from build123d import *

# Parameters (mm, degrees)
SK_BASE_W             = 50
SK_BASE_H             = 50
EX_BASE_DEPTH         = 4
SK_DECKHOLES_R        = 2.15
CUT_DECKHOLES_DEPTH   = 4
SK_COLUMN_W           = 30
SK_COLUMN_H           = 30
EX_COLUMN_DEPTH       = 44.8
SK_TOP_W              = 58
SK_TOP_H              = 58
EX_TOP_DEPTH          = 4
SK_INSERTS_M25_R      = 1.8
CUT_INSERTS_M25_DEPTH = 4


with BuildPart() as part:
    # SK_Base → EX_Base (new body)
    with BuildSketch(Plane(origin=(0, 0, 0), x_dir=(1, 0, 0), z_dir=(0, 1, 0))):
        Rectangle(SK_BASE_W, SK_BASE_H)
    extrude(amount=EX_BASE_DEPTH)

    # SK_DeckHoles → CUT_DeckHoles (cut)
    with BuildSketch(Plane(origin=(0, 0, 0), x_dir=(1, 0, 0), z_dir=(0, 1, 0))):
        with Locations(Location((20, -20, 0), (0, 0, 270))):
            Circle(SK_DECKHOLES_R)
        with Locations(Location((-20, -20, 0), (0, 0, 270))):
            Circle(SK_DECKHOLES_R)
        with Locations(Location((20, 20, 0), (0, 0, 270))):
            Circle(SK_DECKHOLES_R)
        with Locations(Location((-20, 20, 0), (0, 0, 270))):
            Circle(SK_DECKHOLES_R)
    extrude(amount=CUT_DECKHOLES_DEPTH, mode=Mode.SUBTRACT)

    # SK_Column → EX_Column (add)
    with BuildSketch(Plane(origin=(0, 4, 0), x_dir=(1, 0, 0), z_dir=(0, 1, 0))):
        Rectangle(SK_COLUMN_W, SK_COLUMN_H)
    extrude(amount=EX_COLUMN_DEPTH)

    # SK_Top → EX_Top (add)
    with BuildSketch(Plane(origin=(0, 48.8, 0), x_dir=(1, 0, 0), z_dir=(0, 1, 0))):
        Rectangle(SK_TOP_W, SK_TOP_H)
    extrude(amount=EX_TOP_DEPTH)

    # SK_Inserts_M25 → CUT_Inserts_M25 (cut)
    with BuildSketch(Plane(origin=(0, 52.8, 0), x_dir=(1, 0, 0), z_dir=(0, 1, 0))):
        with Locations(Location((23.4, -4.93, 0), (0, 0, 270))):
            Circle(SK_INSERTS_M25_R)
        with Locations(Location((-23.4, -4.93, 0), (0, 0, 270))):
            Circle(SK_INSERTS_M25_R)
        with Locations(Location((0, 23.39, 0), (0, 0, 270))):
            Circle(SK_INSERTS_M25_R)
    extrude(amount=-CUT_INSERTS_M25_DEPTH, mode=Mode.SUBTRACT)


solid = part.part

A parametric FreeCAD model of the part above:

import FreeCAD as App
import Part
import Sketcher

V = App.Vector
Q = App.Units.Quantity


def add_polygon(sketch, points):
    """Adds a closed chain of lines whose ends are joined by coincident constraints."""
    first, n = sketch.GeometryCount, len(points)
    for a, b in zip(points, points[1:] + points[:1]):
        sketch.addGeometry(Part.LineSegment(App.Vector(*a, 0), App.Vector(*b, 0)), False)
    for i in range(n):
        sketch.addConstraint(Sketcher.Constraint("Coincident", first + i, 2, first + (i + 1) % n, 1))

doc = App.newDocument("Part")
params = doc.addObject("Spreadsheet::Sheet", "Params")
for row, (alias, value) in enumerate([
    ("sketch1_width", "50 mm"),
    ("pad1_length", "4 mm"),
    ("sketch2_diameter", "4.3 mm"),
    ("pocket1_length", "4 mm"),
    ("sketch3_width", "30 mm"),
    ("pad2_length", "44.8 mm"),
    ("sketch4_width", "58 mm"),
    ("pad3_length", "4 mm"),
    ("sketch5_diameter", "3.6 mm"),
    ("pocket2_length", "4 mm"),
], start=1):
    params.set(f"A{row}", alias)
    params.set(f"B{row}", "=" + value)
    params.setAlias(f"B{row}", alias)

body = doc.addObject("PartDesign::Body", "Body")

sketch1 = body.newObject("Sketcher::SketchObject", "Sketch")
sketch1.AttachmentSupport = (doc.getObject("XZ_Plane"), [""])
sketch1.MapMode = "FlatFace"
add_polygon(sketch1, [(-25, -25), (-25, 25), (25, 25), (25, -25)])
sketch1.addConstraint([
    Sketcher.Constraint("Vertical", 0),
    Sketcher.Constraint("Horizontal", 1),
    Sketcher.Constraint("Vertical", 2),
    Sketcher.Constraint("Horizontal", 3),
    Sketcher.Constraint("Symmetric", 0, 2, 2, 2, -1, 1),
    Sketcher.Constraint("Equal", 3, 0),
    Sketcher.Constraint("DistanceX", 1, 1, 1, 2, Q("50 mm")),
])
sketch1.setExpression("Constraints[10]", "Params.sketch1_width")
pad1 = body.newObject("PartDesign::Pad", "Pad")
pad1.Profile = sketch1
pad1.setExpression("Length", "Params.pad1_length")
pad1.Reversed = True

sketch2 = body.newObject("Sketcher::SketchObject", "Sketch001")
sketch2.AttachmentSupport = (doc.getObject("XZ_Plane"), [""])
sketch2.MapMode = "FlatFace"
sketch2.addGeometry([
    Part.Circle(V(20, 20, 0), V(0, 0, 1), 2.1),
    Part.Circle(V(-20, 20, 0), V(0, 0, 1), 2.1),
    Part.Circle(V(20, -20, 0), V(0, 0, 1), 2.1),
    Part.Circle(V(-20, -20, 0), V(0, 0, 1), 2.1),
], False)
sketch2.addConstraint([
    Sketcher.Constraint("Equal", 0, 1),
    Sketcher.Constraint("Equal", 1, 2),
    Sketcher.Constraint("Equal", 2, 3),
    Sketcher.Constraint("Symmetric", 1, 3, 2, 3, -1, 1),
    Sketcher.Constraint("Symmetric", 0, 3, 3, 3, -1, 1),
    Sketcher.Constraint("Symmetric", 0, 3, 1, 3, -2),
    Sketcher.Constraint("Diameter", 0, Q("4.3 mm")),
    Sketcher.Constraint("DistanceX", -1, 1, 0, 3, Q("20 mm")),
    Sketcher.Constraint("DistanceY", -1, 1, 0, 3, Q("20 mm")),
])
sketch2.setExpression("Constraints[6]", "Params.sketch2_diameter")
pocket1 = body.newObject("PartDesign::Pocket", "Pocket")
pocket1.Profile = sketch2
pocket1.setExpression("Length", "Params.pocket1_length")

sketch3 = body.newObject("Sketcher::SketchObject", "Sketch002")
sketch3.AttachmentSupport = (doc.getObject("XZ_Plane"), [""])
sketch3.MapMode = "FlatFace"
sketch3.AttachmentOffset = App.Placement(V(0, 0, -4), App.Rotation())
add_polygon(sketch3, [(-15, -15), (-15, 15), (15, 15), (15, -15)])
sketch3.addConstraint([
    Sketcher.Constraint("Vertical", 0),
    Sketcher.Constraint("Horizontal", 1),
    Sketcher.Constraint("Vertical", 2),
    Sketcher.Constraint("Horizontal", 3),
    Sketcher.Constraint("Symmetric", 0, 2, 2, 2, -1, 1),
    Sketcher.Constraint("Equal", 3, 0),
    Sketcher.Constraint("DistanceX", 1, 1, 1, 2, Q("30 mm")),
])
sketch3.setExpression("Constraints[10]", "Params.sketch3_width")
pad2 = body.newObject("PartDesign::Pad", "Pad001")
pad2.Profile = sketch3
pad2.setExpression("Length", "Params.pad2_length")
pad2.Reversed = True

sketch4 = body.newObject("Sketcher::SketchObject", "Sketch003")
sketch4.AttachmentSupport = (doc.getObject("XZ_Plane"), [""])
sketch4.MapMode = "FlatFace"
sketch4.AttachmentOffset = App.Placement(V(0, 0, -48.8), App.Rotation())
add_polygon(sketch4, [(-29, -29), (-29, 29), (29, 29), (29, -29)])
sketch4.addConstraint([
    Sketcher.Constraint("Vertical", 0),
    Sketcher.Constraint("Horizontal", 1),
    Sketcher.Constraint("Vertical", 2),
    Sketcher.Constraint("Horizontal", 3),
    Sketcher.Constraint("Symmetric", 0, 2, 2, 2, -1, 1),
    Sketcher.Constraint("Equal", 3, 0),
    Sketcher.Constraint("DistanceX", 1, 1, 1, 2, Q("58 mm")),
])
sketch4.setExpression("Constraints[10]", "Params.sketch4_width")
pad3 = body.newObject("PartDesign::Pad", "Pad002")
pad3.Profile = sketch4
pad3.setExpression("Length", "Params.pad3_length")
pad3.Reversed = True

sketch5 = body.newObject("Sketcher::SketchObject", "Sketch004")
sketch5.AttachmentSupport = (doc.getObject("XZ_Plane"), [""])
sketch5.MapMode = "FlatFace"
sketch5.AttachmentOffset = App.Placement(V(0, 0, -52.8), App.Rotation())
sketch5.addGeometry([
    Part.Circle(V(23.4, 4.9, 0), V(0, 0, 1), 1.8),
    Part.Circle(V(-23.4, 4.9, 0), V(0, 0, 1), 1.8),
    Part.Circle(V(0, -23.4, 0), V(0, 0, 1), 1.8),
], False)
sketch5.addConstraint([
    Sketcher.Constraint("Equal", 0, 1),
    Sketcher.Constraint("Equal", 1, 2),
    Sketcher.Constraint("Symmetric", 0, 3, 1, 3, -2),
    Sketcher.Constraint("PointOnObject", 2, 3, -2),
    Sketcher.Constraint("Diameter", 0, Q("3.6 mm")),
    Sketcher.Constraint("DistanceX", -1, 1, 0, 3, Q("23.4 mm")),
    Sketcher.Constraint("DistanceY", -1, 1, 0, 3, Q("4.93 mm")),
    Sketcher.Constraint("DistanceY", 2, 3, -1, 1, Q("23.39 mm")),
])
sketch5.setExpression("Constraints[4]", "Params.sketch5_diameter")
pocket2 = body.newObject("PartDesign::Pocket", "Pocket001")
pocket2.Profile = sketch5
pocket2.setExpression("Length", "Params.pocket2_length")
pocket2.Reversed = True

doc.recompute()
